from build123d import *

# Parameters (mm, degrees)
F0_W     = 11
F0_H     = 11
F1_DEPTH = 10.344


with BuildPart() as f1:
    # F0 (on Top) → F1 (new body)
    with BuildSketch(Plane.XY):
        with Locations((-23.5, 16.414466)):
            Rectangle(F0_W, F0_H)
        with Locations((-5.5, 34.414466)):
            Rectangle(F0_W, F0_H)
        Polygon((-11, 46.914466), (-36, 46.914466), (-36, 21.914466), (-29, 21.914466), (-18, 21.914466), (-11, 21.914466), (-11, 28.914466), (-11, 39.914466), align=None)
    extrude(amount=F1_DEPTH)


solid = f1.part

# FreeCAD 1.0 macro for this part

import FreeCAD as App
import Part
import Sketcher


def add_polygon(sketch, points):
    """Adds a closed chain of lines whose ends are joined by coincident constraints."""
    first, n = sketch.GeometryCount, len(points)
    for a, b in zip(points, points[1:] + points[:1]):
        sketch.addGeometry(Part.LineSegment(App.Vector(*a, 0), App.Vector(*b, 0)), False)
    for i in range(n):
        sketch.addConstraint(Sketcher.Constraint("Coincident", first + i, 2, first + (i + 1) % n, 1))

doc = App.newDocument("Part")
body = doc.addObject("PartDesign::Body", "Body")

# Sketch on XY plane
sketch1 = body.newObject("Sketcher::SketchObject", "Sketch")
sketch1.AttachmentSupport = (doc.getObject("XY_Plane"), [""])
sketch1.MapMode = "FlatFace"
add_polygon(sketch1, [(-29, 22), (-29, 11), (-18, 11), (-18, 22), (-11, 22), (-11, 29), (0, 29), (0, 40), (-11, 40), (-11, 47), (-36, 47), (-36, 22)])  # lines 0-11
sketch1.addConstraint([
    Sketcher.Constraint("Vertical", 0),
    Sketcher.Constraint("Horizontal", 1),
    Sketcher.Constraint("Vertical", 2),
    Sketcher.Constraint("Horizontal", 3),
    Sketcher.Constraint("Vertical", 4),
    Sketcher.Constraint("Horizontal", 5),
    Sketcher.Constraint("Vertical", 6),
    Sketcher.Constraint("Horizontal", 7),
    Sketcher.Constraint("Vertical", 8),
    Sketcher.Constraint("Horizontal", 9),
    Sketcher.Constraint("Vertical", 10),
    Sketcher.Constraint("Horizontal", 11),
    Sketcher.Constraint("PointOnObject", 5, 2, -2),
    Sketcher.Constraint("Horizontal", 3, 2, 10, 2),
    Sketcher.Constraint("Vertical", 4, 2, 7, 2),
    Sketcher.Constraint("Equal", 1, 5),
    Sketcher.Constraint("Equal", 3, 11),
    Sketcher.Constraint("Equal", 7, 0),
    Sketcher.Constraint("Equal", 11, 4),
    Sketcher.Constraint("Equal", 2, 6),
    Sketcher.Constraint("Equal", 4, 8),
    Sketcher.Constraint("DistanceX", 1, 1, 1, 2, 11.0),
    Sketcher.Constraint("DistanceX", 3, 1, 3, 2, 7.0),
    Sketcher.Constraint("DistanceY", -1, 1, 0, 2, 10.914466),
])
pad1 = body.newObject("PartDesign::Pad", "Pad")
pad1.Profile = sketch1
pad1.Length = 10.344

doc.recompute()
